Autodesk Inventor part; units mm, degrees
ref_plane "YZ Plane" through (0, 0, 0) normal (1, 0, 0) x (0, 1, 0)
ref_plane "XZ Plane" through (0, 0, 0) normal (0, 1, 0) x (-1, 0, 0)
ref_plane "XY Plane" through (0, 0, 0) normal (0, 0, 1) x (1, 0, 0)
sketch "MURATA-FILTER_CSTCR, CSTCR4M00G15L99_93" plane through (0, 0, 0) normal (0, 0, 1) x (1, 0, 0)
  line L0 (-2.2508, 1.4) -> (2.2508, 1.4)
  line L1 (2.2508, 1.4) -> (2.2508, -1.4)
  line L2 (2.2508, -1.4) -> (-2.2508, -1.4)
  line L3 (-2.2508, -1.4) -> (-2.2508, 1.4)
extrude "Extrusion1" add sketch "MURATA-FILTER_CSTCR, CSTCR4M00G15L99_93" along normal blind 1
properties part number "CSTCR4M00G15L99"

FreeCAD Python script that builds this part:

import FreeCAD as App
import Part
import Sketcher


def add_polygon(sketch, points):
    """Adds a closed chain of lines whose ends are joined by coincident constraints."""
    first, n = sketch.GeometryCount, len(points)
    for a, b in zip(points, points[1:] + points[:1]):
        sketch.addGeometry(Part.LineSegment(App.Vector(*a, 0), App.Vector(*b, 0)), False)
    for i in range(n):
        sketch.addConstraint(Sketcher.Constraint("Coincident", first + i, 2, first + (i + 1) % n, 1))

doc = App.newDocument("Part")
body = doc.addObject("PartDesign::Body", "Body")

sketch1 = body.newObject("Sketcher::SketchObject", "Sketch")
sketch1.AttachmentSupport = (doc.getObject("XY_Plane"), [""])
sketch1.MapMode = "FlatFace"
add_polygon(sketch1, [(2.3, 1.4), (-2.3, 1.4), (-2.3, -1.4), (2.3, -1.4)])
sketch1.addConstraint([
    Sketcher.Constraint("Horizontal", 0),
    Sketcher.Constraint("Vertical", 1),
    Sketcher.Constraint("Horizontal", 2),
    Sketcher.Constraint("Vertical", 3),
    Sketcher.Constraint("Symmetric", 0, 2, 2, 2, -1, 1),
    Sketcher.Constraint("DistanceY", 1, 2, 1, 1, 2.8),
    Sketcher.Constraint("DistanceX", 0, 2, 0, 1, 4.5016),
])
pad1 = body.newObject("PartDesign::Pad", "Pad")
pad1.Profile = sketch1
pad1.Length = 1

doc.recompute()
